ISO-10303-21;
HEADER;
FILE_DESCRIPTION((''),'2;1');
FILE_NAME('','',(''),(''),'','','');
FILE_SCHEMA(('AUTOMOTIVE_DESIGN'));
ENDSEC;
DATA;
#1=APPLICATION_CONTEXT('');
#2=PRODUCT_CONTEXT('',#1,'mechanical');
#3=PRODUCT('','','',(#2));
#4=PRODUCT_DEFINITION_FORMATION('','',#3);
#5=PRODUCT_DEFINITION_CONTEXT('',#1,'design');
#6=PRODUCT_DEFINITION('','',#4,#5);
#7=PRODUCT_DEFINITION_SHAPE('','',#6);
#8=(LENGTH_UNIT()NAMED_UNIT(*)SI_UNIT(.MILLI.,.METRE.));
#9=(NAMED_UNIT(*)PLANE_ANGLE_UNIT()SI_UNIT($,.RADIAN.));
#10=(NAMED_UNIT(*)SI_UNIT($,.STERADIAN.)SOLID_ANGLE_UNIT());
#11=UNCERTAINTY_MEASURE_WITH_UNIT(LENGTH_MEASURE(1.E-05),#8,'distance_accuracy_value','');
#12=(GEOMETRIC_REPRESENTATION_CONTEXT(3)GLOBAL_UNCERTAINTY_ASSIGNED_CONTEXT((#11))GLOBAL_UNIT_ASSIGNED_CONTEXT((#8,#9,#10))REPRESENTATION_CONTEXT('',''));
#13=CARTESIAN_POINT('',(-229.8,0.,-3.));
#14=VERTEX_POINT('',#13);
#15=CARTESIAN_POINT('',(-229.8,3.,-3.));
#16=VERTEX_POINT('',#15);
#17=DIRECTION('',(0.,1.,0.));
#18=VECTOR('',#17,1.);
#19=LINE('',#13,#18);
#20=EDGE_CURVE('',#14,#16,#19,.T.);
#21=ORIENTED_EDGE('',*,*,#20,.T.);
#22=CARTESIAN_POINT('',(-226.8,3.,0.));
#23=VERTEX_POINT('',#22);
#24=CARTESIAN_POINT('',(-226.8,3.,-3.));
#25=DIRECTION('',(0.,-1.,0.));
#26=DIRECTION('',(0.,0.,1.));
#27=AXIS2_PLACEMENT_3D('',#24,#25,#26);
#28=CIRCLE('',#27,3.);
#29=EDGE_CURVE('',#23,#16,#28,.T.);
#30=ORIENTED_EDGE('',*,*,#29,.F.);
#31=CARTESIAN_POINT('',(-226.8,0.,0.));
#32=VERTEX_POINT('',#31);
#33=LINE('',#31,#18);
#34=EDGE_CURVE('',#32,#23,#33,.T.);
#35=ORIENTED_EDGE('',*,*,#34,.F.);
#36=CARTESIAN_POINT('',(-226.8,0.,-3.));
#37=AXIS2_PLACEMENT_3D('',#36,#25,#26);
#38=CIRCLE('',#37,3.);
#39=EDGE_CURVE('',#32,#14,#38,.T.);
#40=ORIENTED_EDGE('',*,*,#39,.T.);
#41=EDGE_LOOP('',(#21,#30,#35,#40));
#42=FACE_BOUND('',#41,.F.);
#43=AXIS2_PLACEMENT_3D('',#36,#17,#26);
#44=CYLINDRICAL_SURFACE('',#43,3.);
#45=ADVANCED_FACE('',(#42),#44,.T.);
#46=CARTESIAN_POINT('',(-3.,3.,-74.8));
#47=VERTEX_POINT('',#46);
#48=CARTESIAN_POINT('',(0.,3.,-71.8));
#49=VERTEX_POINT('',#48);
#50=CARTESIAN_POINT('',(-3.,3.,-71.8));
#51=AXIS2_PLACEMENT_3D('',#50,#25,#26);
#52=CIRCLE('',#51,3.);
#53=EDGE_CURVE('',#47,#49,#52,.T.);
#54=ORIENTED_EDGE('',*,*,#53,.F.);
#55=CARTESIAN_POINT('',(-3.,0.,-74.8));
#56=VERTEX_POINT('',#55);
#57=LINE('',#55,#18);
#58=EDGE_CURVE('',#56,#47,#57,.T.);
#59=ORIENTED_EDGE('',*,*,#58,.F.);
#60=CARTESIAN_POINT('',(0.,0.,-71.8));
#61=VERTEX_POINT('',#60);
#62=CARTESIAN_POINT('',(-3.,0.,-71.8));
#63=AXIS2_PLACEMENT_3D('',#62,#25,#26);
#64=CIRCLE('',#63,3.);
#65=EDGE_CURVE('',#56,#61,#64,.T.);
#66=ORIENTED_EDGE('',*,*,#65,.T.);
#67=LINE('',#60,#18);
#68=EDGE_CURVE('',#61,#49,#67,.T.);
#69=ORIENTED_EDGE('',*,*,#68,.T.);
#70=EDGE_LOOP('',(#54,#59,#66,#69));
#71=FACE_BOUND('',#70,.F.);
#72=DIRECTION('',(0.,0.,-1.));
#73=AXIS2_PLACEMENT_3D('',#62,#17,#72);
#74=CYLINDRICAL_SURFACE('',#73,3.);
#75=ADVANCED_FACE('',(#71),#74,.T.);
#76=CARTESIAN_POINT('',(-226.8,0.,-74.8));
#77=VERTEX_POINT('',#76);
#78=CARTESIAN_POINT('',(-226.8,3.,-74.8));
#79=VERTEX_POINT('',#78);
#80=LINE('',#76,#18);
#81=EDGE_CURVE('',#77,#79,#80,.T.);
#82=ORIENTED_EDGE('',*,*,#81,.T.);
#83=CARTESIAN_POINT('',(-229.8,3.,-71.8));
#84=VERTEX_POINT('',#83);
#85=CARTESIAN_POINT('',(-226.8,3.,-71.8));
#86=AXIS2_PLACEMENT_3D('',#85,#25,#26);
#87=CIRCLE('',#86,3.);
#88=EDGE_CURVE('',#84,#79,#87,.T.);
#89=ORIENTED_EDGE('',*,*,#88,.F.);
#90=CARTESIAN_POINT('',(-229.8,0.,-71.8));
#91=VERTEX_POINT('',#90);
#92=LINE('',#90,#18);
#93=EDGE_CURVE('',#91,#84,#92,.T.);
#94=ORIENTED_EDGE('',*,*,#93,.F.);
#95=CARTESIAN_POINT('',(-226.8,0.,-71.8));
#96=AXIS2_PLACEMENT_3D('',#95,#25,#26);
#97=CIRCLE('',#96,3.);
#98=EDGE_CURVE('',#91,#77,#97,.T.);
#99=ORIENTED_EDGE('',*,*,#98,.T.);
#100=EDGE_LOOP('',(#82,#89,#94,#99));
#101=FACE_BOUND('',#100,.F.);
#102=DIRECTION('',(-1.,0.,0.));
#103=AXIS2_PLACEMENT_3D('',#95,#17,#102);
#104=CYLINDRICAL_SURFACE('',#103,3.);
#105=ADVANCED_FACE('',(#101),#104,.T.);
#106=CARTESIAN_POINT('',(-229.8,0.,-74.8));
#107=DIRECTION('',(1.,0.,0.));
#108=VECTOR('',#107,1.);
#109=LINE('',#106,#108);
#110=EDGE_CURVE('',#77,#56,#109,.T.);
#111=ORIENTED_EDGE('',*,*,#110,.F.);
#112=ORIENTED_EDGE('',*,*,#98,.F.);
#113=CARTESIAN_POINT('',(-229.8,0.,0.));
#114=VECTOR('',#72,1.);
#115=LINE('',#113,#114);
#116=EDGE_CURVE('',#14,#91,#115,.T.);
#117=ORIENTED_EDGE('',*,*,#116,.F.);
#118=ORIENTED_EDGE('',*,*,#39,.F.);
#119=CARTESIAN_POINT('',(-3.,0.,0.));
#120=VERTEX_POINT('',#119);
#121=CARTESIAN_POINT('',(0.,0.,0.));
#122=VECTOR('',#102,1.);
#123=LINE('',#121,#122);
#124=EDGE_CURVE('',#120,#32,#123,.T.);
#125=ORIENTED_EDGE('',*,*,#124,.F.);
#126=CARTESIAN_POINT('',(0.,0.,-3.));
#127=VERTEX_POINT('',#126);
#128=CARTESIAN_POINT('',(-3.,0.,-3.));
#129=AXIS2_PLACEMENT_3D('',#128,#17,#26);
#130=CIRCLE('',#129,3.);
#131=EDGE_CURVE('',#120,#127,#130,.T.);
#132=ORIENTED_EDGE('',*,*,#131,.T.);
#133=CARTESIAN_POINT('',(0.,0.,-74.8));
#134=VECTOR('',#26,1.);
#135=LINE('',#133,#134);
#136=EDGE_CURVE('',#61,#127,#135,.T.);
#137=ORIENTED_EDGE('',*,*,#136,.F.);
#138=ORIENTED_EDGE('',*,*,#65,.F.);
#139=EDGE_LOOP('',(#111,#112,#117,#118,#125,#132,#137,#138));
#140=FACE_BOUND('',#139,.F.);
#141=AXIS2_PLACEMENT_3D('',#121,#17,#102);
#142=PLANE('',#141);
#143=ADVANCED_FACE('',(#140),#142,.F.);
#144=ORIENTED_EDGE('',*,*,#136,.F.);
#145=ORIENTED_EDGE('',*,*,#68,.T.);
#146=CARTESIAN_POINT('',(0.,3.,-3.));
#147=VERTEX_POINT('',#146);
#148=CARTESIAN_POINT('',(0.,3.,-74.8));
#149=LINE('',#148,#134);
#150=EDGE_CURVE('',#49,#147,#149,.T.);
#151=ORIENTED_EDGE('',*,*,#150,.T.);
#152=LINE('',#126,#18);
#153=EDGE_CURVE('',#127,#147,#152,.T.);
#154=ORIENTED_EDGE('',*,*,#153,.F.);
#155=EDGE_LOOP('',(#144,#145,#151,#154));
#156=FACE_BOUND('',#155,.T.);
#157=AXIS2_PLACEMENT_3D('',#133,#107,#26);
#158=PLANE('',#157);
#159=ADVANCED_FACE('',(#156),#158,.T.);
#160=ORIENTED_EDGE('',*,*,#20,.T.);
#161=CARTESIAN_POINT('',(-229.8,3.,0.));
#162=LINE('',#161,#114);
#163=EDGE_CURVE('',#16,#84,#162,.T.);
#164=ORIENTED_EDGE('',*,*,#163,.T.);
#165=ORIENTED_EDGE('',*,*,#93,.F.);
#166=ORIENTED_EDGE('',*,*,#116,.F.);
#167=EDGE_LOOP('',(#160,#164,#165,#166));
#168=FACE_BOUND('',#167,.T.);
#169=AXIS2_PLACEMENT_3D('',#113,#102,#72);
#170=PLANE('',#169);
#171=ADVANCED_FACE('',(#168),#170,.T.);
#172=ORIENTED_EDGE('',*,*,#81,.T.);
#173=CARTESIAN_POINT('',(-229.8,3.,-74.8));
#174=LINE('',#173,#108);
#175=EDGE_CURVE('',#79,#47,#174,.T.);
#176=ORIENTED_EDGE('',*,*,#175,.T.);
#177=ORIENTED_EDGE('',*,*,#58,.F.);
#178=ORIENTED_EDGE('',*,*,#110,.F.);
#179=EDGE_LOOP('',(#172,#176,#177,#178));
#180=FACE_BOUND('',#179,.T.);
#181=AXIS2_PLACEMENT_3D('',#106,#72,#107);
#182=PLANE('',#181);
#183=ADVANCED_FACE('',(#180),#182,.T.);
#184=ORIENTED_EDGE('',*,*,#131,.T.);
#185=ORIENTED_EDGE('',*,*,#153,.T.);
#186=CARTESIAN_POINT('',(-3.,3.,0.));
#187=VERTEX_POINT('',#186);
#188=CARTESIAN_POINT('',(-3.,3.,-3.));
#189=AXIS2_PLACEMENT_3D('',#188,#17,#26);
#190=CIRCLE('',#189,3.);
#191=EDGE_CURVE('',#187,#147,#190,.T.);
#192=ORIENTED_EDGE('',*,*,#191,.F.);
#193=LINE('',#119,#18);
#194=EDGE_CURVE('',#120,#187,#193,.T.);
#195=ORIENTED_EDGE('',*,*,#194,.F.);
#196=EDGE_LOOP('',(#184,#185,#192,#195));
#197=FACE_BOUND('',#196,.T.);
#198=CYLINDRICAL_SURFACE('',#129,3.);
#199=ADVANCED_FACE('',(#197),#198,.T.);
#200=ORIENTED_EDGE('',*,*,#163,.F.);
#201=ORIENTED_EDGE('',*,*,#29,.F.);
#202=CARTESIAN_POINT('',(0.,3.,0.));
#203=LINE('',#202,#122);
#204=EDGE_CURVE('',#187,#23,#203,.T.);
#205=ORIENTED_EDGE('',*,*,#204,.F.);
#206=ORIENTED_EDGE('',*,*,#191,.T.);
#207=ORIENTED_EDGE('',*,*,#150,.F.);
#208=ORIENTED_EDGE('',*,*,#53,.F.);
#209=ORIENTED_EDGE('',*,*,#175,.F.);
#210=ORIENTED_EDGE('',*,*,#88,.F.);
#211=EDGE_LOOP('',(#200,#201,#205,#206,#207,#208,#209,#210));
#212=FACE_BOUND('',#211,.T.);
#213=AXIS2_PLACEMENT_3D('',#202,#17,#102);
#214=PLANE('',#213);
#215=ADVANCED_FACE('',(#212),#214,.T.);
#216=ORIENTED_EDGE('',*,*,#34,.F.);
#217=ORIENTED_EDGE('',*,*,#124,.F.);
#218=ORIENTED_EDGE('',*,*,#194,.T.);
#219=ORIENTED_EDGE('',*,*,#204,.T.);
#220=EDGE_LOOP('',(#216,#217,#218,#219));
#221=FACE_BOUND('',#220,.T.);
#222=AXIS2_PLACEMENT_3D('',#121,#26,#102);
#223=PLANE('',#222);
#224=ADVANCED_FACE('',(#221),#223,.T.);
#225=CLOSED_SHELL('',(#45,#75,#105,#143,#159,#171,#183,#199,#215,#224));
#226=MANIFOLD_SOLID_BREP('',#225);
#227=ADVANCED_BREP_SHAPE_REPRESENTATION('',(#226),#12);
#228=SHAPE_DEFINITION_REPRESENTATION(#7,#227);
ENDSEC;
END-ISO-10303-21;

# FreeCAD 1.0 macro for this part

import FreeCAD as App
import Part
import Sketcher
from FreeCAD import Vector
Q = App.Units.Quantity


def edges_at(feature, points):
    """Names of the edges that pass closest to the given points."""
    edges = feature.Shape.Edges
    near = lambda p: min(range(len(edges)), key=lambda i: edges[i].distToShape(Part.Vertex(*p))[0])
    return sorted({f"Edge{near(p) + 1}" for p in points})

doc = App.newDocument("Part")
params = doc.addObject("Spreadsheet::Sheet", "Params")
for row, (alias, value) in enumerate([
    ("sketch1_width", "229.8 mm"),
    ("sketch1_height", "74.8 mm"),
    ("pad1_length", "3 mm"),
    ("fillet_radius", "3 mm"),
], start=1):
    params.set(f"A{row}", alias)
    params.set(f"B{row}", "=" + value)
    params.setAlias(f"B{row}", alias)

body = doc.addObject("PartDesign::Body", "Body")

sketch1 = body.newObject("Sketcher::SketchObject", "Sketch")
sketch1.AttachmentSupport = (doc.getObject("XZ_Plane"), [""])
sketch1.MapMode = "FlatFace"
sketch1.addGeometry([
    Part.LineSegment(Vector(-230, 0, 0), Vector(0, 0, 0)),
    Part.LineSegment(Vector(0, 0, 0), Vector(0, -75, 0)),
    Part.LineSegment(Vector(0, -75, 0), Vector(-230, -75, 0)),
    Part.LineSegment(Vector(-230, -75, 0), Vector(-230, 0, 0)),
], False)
sketch1.addConstraint([
    Sketcher.Constraint("Coincident", 0, 2, 1, 1),
    Sketcher.Constraint("Coincident", 1, 2, 2, 1),
    Sketcher.Constraint("Coincident", 2, 2, 3, 1),
    Sketcher.Constraint("Coincident", 3, 2, 0, 1),
    Sketcher.Constraint("Horizontal", 0),
    Sketcher.Constraint("Vertical", 1),
    Sketcher.Constraint("Horizontal", 2),
    Sketcher.Constraint("Vertical", 3),
    Sketcher.Constraint("Coincident", 0, 2, -1, 1),
    Sketcher.Constraint("DistanceX", 0, 1, 0, 2, Q("229.8 mm")),
    Sketcher.Constraint("DistanceY", 1, 2, 1, 1, Q("74.8 mm")),
])
sketch1.setExpression("Constraints[9]", "Params.sketch1_width")
sketch1.setExpression("Constraints[10]", "Params.sketch1_height")
pad1 = body.newObject("PartDesign::Pad", "Pad")
pad1.Profile = sketch1
pad1.setExpression("Length", "Params.pad1_length")
pad1.Reversed = True
doc.recompute()

fillet = body.newObject("PartDesign::Fillet", "Fillet")
fillet.Base = (pad1, edges_at(pad1, [
    (0, 1.5, 0),
    (0, 1.5, -74.8),
    (-229.8, 1.5, 0),
    (-229.8, 1.5, -74.8),
]))
fillet.setExpression("Radius", "Params.fillet_radius")

doc.recompute()
